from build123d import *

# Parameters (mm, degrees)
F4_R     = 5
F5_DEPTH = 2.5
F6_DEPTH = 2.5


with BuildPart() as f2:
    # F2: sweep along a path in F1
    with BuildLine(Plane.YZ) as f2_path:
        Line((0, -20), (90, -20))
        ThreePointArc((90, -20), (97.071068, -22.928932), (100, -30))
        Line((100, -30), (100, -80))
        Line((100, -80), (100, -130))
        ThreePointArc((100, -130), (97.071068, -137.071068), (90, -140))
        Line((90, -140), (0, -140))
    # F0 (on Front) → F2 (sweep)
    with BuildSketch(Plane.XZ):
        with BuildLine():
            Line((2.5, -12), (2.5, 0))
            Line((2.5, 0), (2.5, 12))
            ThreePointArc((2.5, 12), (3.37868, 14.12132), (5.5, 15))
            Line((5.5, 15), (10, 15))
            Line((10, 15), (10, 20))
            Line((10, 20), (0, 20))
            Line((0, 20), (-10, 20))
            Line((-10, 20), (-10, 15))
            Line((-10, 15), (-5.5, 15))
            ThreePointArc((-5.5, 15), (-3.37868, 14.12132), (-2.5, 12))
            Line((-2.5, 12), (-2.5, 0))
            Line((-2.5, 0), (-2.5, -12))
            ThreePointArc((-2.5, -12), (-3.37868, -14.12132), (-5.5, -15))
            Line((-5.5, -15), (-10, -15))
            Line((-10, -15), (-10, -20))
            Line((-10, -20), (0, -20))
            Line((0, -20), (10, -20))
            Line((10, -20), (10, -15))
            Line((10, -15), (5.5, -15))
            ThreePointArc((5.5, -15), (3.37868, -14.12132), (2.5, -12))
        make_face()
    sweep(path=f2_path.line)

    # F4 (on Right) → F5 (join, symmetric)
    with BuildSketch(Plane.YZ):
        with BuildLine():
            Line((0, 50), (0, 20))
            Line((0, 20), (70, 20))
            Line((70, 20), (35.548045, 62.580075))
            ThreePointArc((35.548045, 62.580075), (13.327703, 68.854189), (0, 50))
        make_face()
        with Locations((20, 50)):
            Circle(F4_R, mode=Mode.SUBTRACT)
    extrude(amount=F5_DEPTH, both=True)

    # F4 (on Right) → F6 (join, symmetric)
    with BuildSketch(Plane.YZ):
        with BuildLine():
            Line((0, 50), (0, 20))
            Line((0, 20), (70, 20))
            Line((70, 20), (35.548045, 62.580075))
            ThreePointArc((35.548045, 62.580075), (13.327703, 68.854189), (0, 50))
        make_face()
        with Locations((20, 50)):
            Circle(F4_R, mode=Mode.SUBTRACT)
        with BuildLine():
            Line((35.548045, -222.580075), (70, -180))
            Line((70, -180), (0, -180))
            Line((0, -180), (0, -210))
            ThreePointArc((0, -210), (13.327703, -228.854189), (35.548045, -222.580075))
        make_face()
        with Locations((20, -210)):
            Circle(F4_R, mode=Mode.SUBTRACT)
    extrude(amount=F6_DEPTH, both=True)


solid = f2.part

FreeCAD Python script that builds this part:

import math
import FreeCAD as App
import Part
import Sketcher
from FreeCAD import Vector
Q = App.Units.Quantity

doc = App.newDocument("Part")
body = doc.addObject("PartDesign::Body", "Body")

# Sketch on XZ plane
sketch1 = body.newObject("Sketcher::SketchObject", "Sketch")
sketch1.AttachmentSupport = (doc.getObject("XZ_Plane"), [""])
sketch1.MapMode = "FlatFace"
sketch1.addGeometry([
    Part.LineSegment(Vector(2.5, -12, 0), Vector(2.5, 12, 0)),  # 0
    Part.ArcOfCircle(Part.Circle(Vector(5.500001, 11.999999, 0), Vector(0, 0, 1), 3.000001), math.radians(90.000022), math.radians(179.999978)),  # 1
    Part.LineSegment(Vector(5.5, 15, 0), Vector(10, 15, 0)),  # 2
    Part.LineSegment(Vector(10, 15, 0), Vector(10, 20, 0)),  # 3
    Part.LineSegment(Vector(10, 20, 0), Vector(-10, 20, 0)),  # 4
    Part.LineSegment(Vector(-10, 20, 0), Vector(-10, 15, 0)),  # 5
    Part.LineSegment(Vector(-10, 15, 0), Vector(-5.5, 15, 0)),  # 6
    Part.ArcOfCircle(Part.Circle(Vector(-5.500001, 11.999999, 0), Vector(0, 0, 1), 3.000001), math.radians(0.000022), math.radians(89.999978)),  # 7
    Part.LineSegment(Vector(-2.5, 12, 0), Vector(-2.5, -12, 0)),  # 8
    Part.ArcOfCircle(Part.Circle(Vector(-5.500001, -11.999999, 0), Vector(0, 0, 1), 3.000001), math.radians(-89.999978), math.radians(-0.000022)),  # 9
    Part.LineSegment(Vector(-5.5, -15, 0), Vector(-10, -15, 0)),  # 10
    Part.LineSegment(Vector(-10, -15, 0), Vector(-10, -20, 0)),  # 11
    Part.LineSegment(Vector(-10, -20, 0), Vector(10, -20, 0)),  # 12
    Part.LineSegment(Vector(10, -20, 0), Vector(10, -15, 0)),  # 13
    Part.LineSegment(Vector(10, -15, 0), Vector(5.5, -15, 0)),  # 14
    Part.ArcOfCircle(Part.Circle(Vector(5.500001, -11.999999, 0), Vector(0, 0, 1), 3.000001), math.radians(-179.999978), math.radians(-90.000022)),  # 15
], False)
sketch1.addConstraint([
    Sketcher.Constraint("Tangent", 0, 2, 1, 2),
    Sketcher.Constraint("Tangent", 1, 1, 2, 1),
    Sketcher.Constraint("Coincident", 2, 2, 3, 1),
    Sketcher.Constraint("Coincident", 3, 2, 4, 1),
    Sketcher.Constraint("Coincident", 4, 2, 5, 1),
    Sketcher.Constraint("Coincident", 5, 2, 6, 1),
    Sketcher.Constraint("Tangent", 6, 2, 7, 2),
    Sketcher.Constraint("Tangent", 7, 1, 8, 1),
    Sketcher.Constraint("Tangent", 8, 2, 9, 2),
    Sketcher.Constraint("Tangent", 9, 1, 10, 1),
    Sketcher.Constraint("Coincident", 10, 2, 11, 1),
    Sketcher.Constraint("Coincident", 11, 2, 12, 1),
    Sketcher.Constraint("Coincident", 12, 2, 13, 1),
    Sketcher.Constraint("Coincident", 13, 2, 14, 1),
    Sketcher.Constraint("Tangent", 14, 2, 15, 2),
    Sketcher.Constraint("Tangent", 15, 1, 0, 1),
    Sketcher.Constraint("Vertical", 0),
    Sketcher.Constraint("Horizontal", 2),
    Sketcher.Constraint("Vertical", 3),
    Sketcher.Constraint("Horizontal", 4),
    Sketcher.Constraint("Vertical", 5),
    Sketcher.Constraint("Horizontal", 6),
    Sketcher.Constraint("Vertical", 8),
    Sketcher.Constraint("Horizontal", 10),
    Sketcher.Constraint("Vertical", 11),
    Sketcher.Constraint("Horizontal", 12),
    Sketcher.Constraint("Vertical", 13),
    Sketcher.Constraint("Horizontal", 14),
    Sketcher.Constraint("Equal", 1, 7),
    Sketcher.Constraint("Equal", 7, 9),
    Sketcher.Constraint("Equal", 9, 15),
    Sketcher.Constraint("Symmetric", 1, 3, 9, 3, -1, 1),
    Sketcher.Constraint("Symmetric", 3, 2, 11, 2, -1, 1),
    Sketcher.Constraint("Symmetric", 5, 2, 13, 2, -1, 1),
    Sketcher.Constraint("Symmetric", 2, 2, 5, 2, -2),
    Sketcher.Constraint("Radius", 1, Q("3.000001 mm")),
    Sketcher.Constraint("DistanceX", 4, 2, 4, 1, Q("20 mm")),
    Sketcher.Constraint("DistanceY", 0, 1, 0, 2, Q("24 mm")),
    Sketcher.Constraint("DistanceY", 3, 1, 3, 2, Q("5 mm")),
    Sketcher.Constraint("DistanceX", 2, 1, 2, 2, Q("4.5 mm")),
])

# Sketch on YZ plane
sketch2 = body.newObject("Sketcher::SketchObject", "Sketch001")
sketch2.AttachmentSupport = (doc.getObject("YZ_Plane"), [""])
sketch2.MapMode = "FlatFace"
sketch2.addGeometry([
    Part.LineSegment(Vector(0, -20, 0), Vector(90, -20, 0)),  # 0
    Part.ArcOfCircle(Part.Circle(Vector(90.000001, -29.999999, 0), Vector(0, 0, 1), 9.999999), math.radians(-0.000004), math.radians(90.000004)),  # 1
    Part.LineSegment(Vector(100, -30, 0), Vector(100, -130, 0)),  # 2
    Part.ArcOfCircle(Part.Circle(Vector(90.000001, -130.000001, 0), Vector(0, 0, 1), 9.999999), math.radians(-90.000004), math.radians(0.000004)),  # 3
    Part.LineSegment(Vector(90, -140, 0), Vector(0, -140, 0)),  # 4
], False)
sketch2.addConstraint([
    Sketcher.Constraint("Tangent", 0, 2, 1, 2),
    Sketcher.Constraint("Tangent", 1, 1, 2, 1),
    Sketcher.Constraint("Tangent", 2, 2, 3, 2),
    Sketcher.Constraint("Tangent", 3, 1, 4, 1),
    Sketcher.Constraint("Horizontal", 0),
    Sketcher.Constraint("Vertical", 2),
    Sketcher.Constraint("Horizontal", 4),
    Sketcher.Constraint("Equal", 1, 3),
    Sketcher.Constraint("PointOnObject", 0, 1, -2),
    Sketcher.Constraint("PointOnObject", 4, 2, -2),
    Sketcher.Constraint("Radius", 1, Q("9.999999 mm")),
    Sketcher.Constraint("DistanceX", 0, 1, 0, 2, Q("90 mm")),
    Sketcher.Constraint("DistanceY", 2, 2, 2, 1, Q("100 mm")),
    Sketcher.Constraint("DistanceY", 1, 3, -1, 1, Q("29.999999 mm")),
])
doc.recompute()

additivepipe = body.newObject("PartDesign::AdditivePipe", "AdditivePipe")
additivepipe.Profile = sketch1
additivepipe.Spine = (sketch2, ["Edge1", "Edge2", "Edge3", "Edge4", "Edge5"])

# Sketch on YZ plane
sketch3 = body.newObject("Sketcher::SketchObject", "Sketch002")
sketch3.AttachmentSupport = (doc.getObject("YZ_Plane"), [""])
sketch3.MapMode = "FlatFace"
sketch3.addGeometry([
    Part.LineSegment(Vector(0, 50, 0), Vector(0, 20, 0)),  # 0
    Part.LineSegment(Vector(0, 20, 0), Vector(70, 20, 0)),  # 1
    Part.LineSegment(Vector(70, 20, 0), Vector(35.548045, 62.580075, 0)),  # 2
    Part.ArcOfCircle(Part.Circle(Vector(20, 50, 0), Vector(0, 0, 1), 20), math.radians(38.97666), math.radians(179.999999)),  # 3
    Part.Circle(Vector(20, 50, 0), Vector(0, 0, 1), 5),  # 4
], False)
sketch3.addConstraint([
    Sketcher.Constraint("Coincident", 0, 2, 1, 1),
    Sketcher.Constraint("Coincident", 1, 2, 2, 1),
    Sketcher.Constraint("Tangent", 2, 2, 3, 1),
    Sketcher.Constraint("Tangent", 3, 2, 0, 1),
    Sketcher.Constraint("Vertical", 0),
    Sketcher.Constraint("Horizontal", 1),
    Sketcher.Constraint("Coincident", 4, 3, 3, 3),
    Sketcher.Constraint("PointOnObject", 0, 2, -2),
    Sketcher.Constraint("Diameter", 4, Q("10 mm")),
    Sketcher.Constraint("Radius", 3, Q("20 mm")),
    Sketcher.Constraint("DistanceX", 1, 1, 1, 2, Q("70 mm")),
    Sketcher.Constraint("DistanceY", 0, 2, 0, 1, Q("30 mm")),
    Sketcher.Constraint("DistanceY", -1, 1, 3, 3, Q("50 mm")),
])
pad1 = body.newObject("PartDesign::Pad", "Pad")
pad1.Profile = sketch3
pad1.Length = 5
pad1.Midplane = True

# Sketch on YZ plane
sketch4 = body.newObject("Sketcher::SketchObject", "Sketch003")
sketch4.AttachmentSupport = (doc.getObject("YZ_Plane"), [""])
sketch4.MapMode = "FlatFace"
sketch4.addGeometry([
    Part.LineSegment(Vector(0, 50, 0), Vector(0, 20, 0)),  # 0
    Part.LineSegment(Vector(0, 20, 0), Vector(70, 20, 0)),  # 1
    Part.LineSegment(Vector(70, 20, 0), Vector(35.548045, 62.580075, 0)),  # 2
    Part.ArcOfCircle(Part.Circle(Vector(20, 50, 0), Vector(0, 0, 1), 20), math.radians(38.97666), math.radians(179.999999)),  # 3
    Part.Circle(Vector(20, 50, 0), Vector(0, 0, 1), 5),  # 4
    Part.LineSegment(Vector(35.548045, -222.580075, 0), Vector(70, -180, 0)),  # 5
    Part.LineSegment(Vector(70, -180, 0), Vector(0, -180, 0)),  # 6
    Part.LineSegment(Vector(0, -180, 0), Vector(0, -210, 0)),  # 7
    Part.ArcOfCircle(Part.Circle(Vector(20, -210, 0), Vector(0, 0, 1), 20), math.radians(-179.999999), math.radians(-38.97666)),  # 8
    Part.Circle(Vector(20, -210, 0), Vector(0, 0, 1), 5),  # 9
], False)
sketch4.addConstraint([
    Sketcher.Constraint("Coincident", 0, 2, 1, 1),
    Sketcher.Constraint("Coincident", 1, 2, 2, 1),
    Sketcher.Constraint("Tangent", 2, 2, 3, 1),
    Sketcher.Constraint("Tangent", 3, 2, 0, 1),
    Sketcher.Constraint("Coincident", 5, 2, 6, 1),
    Sketcher.Constraint("Coincident", 6, 2, 7, 1),
    Sketcher.Constraint("Tangent", 7, 2, 8, 1),
    Sketcher.Constraint("Tangent", 8, 2, 5, 1),
    Sketcher.Constraint("Vertical", 0),
    Sketcher.Constraint("Horizontal", 1),
    Sketcher.Constraint("Horizontal", 6),
    Sketcher.Constraint("Vertical", 7),
    Sketcher.Constraint("Coincident", 4, 3, 3, 3),
    Sketcher.Constraint("Coincident", 9, 3, 8, 3),
    Sketcher.Constraint("Equal", 3, 8),
    Sketcher.Constraint("Equal", 4, 9),
    Sketcher.Constraint("PointOnObject", 0, 2, -2),
    Sketcher.Constraint("PointOnObject", 6, 2, -2),
    Sketcher.Constraint("Vertical", 1, 2, 5, 2),
    Sketcher.Constraint("Vertical", 2, 2, 8, 2),
    Sketcher.Constraint("Diameter", 4, Q("10 mm")),
    Sketcher.Constraint("Radius", 3, Q("20 mm")),
    Sketcher.Constraint("DistanceX", 1, 1, 1, 2, Q("70 mm")),
    Sketcher.Constraint("DistanceY", 0, 2, 0, 1, Q("30 mm")),
    Sketcher.Constraint("DistanceY", -1, 1, 3, 3, Q("50 mm")),
    Sketcher.Constraint("DistanceY", 8, 3, -1, 1, Q("210 mm")),
])
pad2 = body.newObject("PartDesign::Pad", "Pad001")
pad2.Profile = sketch4
pad2.Length = 5
pad2.Midplane = True

doc.recompute()
